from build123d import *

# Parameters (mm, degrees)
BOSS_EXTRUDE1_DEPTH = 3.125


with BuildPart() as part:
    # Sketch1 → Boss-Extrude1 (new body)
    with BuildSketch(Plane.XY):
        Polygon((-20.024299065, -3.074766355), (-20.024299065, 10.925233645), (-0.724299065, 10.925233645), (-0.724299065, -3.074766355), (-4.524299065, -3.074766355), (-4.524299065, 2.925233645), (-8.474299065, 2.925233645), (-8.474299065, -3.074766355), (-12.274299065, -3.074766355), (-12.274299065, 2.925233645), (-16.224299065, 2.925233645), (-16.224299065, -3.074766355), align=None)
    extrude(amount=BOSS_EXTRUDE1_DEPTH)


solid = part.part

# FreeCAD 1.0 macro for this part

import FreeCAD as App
import Part
import Sketcher

V = App.Vector
Q = App.Units.Quantity


def add_polygon(sketch, points):
    """Adds a closed chain of lines whose ends are joined by coincident constraints."""
    first, n = sketch.GeometryCount, len(points)
    for a, b in zip(points, points[1:] + points[:1]):
        sketch.addGeometry(Part.LineSegment(App.Vector(*a, 0), App.Vector(*b, 0)), False)
    for i in range(n):
        sketch.addConstraint(Sketcher.Constraint("Coincident", first + i, 2, first + (i + 1) % n, 1))

doc = App.newDocument("Part")
params = doc.addObject("Spreadsheet::Sheet", "Params")
for row, (alias, value) in enumerate([
    ("sketch1_height", "14 mm"),
    ("sketch1_height2", "6 mm"),
    ("sketch1_width", "3.8 mm"),
    ("sketch1_width2", "19.3 mm"),
    ("pad1_length", "3.125 mm"),
], start=1):
    params.set(f"A{row}", alias)
    params.set(f"B{row}", "=" + value)
    params.setAlias(f"B{row}", alias)

body = doc.addObject("PartDesign::Body", "Body")

sketch1 = doc.addObject("Sketcher::SketchObject", "Sketch")
body.addObject(sketch1)
sketch1.AttachmentSupport = (doc.XY_Plane, [""])
sketch1.MapMode = "FlatFace"
add_polygon(sketch1, [(-20.024299, 10.925234), (-20.024299, -3.074766), (-16.224299, -3.074766), (-16.224299, 2.925234), (-12.274299, 2.925234), (-12.274299, -3.074766), (-8.474299, -3.074766), (-8.474299, 2.925234), (-4.524299, 2.925234), (-4.524299, -3.074766), (-0.724299, -3.074766), (-0.724299, 10.925234)])
sketch1.addConstraint([
    Sketcher.Constraint("Vertical", 0),
    Sketcher.Constraint("Horizontal", 1),
    Sketcher.Constraint("Vertical", 2),
    Sketcher.Constraint("Horizontal", 3),
    Sketcher.Constraint("Vertical", 4),
    Sketcher.Constraint("Horizontal", 5),
    Sketcher.Constraint("Vertical", 6),
    Sketcher.Constraint("Horizontal", 7),
    Sketcher.Constraint("Vertical", 8),
    Sketcher.Constraint("Horizontal", 9),
    Sketcher.Constraint("Vertical", 10),
    Sketcher.Constraint("Horizontal", 11),
    Sketcher.Constraint("Horizontal", 1, 2, 4, 2),
    Sketcher.Constraint("Horizontal", 3, 2, 6, 2),
    Sketcher.Constraint("Horizontal", 5, 2, 8, 2),
    Sketcher.Constraint("Equal", 1, 5),
    Sketcher.Constraint("Equal", 3, 7),
    Sketcher.Constraint("Equal", 5, 9),
    Sketcher.Constraint("DistanceY", 0, 2, 0, 1, Q("14 mm")),
    Sketcher.Constraint("DistanceY", 2, 1, 2, 2, Q("6 mm")),
    Sketcher.Constraint("DistanceX", 1, 1, 1, 2, Q("3.8 mm")),
    Sketcher.Constraint("DistanceX", 11, 2, 11, 1, Q("19.3 mm")),
    Sketcher.Constraint("DistanceX", 0, 2, -1, 1, Q("20.024299 mm")),
    Sketcher.Constraint("DistanceY", 0, 2, -1, 1, Q("3.074766 mm")),
])
sketch1.setExpression("Constraints[30]", "Params.sketch1_height")
sketch1.setExpression("Constraints[31]", "Params.sketch1_height2")
sketch1.setExpression("Constraints[32]", "Params.sketch1_width")
sketch1.setExpression("Constraints[33]", "Params.sketch1_width2")
pad1 = doc.addObject("PartDesign::Pad", "Pad")
body.addObject(pad1)
pad1.Profile = sketch1
pad1.setExpression("Length", "Params.pad1_length")

doc.recompute()
